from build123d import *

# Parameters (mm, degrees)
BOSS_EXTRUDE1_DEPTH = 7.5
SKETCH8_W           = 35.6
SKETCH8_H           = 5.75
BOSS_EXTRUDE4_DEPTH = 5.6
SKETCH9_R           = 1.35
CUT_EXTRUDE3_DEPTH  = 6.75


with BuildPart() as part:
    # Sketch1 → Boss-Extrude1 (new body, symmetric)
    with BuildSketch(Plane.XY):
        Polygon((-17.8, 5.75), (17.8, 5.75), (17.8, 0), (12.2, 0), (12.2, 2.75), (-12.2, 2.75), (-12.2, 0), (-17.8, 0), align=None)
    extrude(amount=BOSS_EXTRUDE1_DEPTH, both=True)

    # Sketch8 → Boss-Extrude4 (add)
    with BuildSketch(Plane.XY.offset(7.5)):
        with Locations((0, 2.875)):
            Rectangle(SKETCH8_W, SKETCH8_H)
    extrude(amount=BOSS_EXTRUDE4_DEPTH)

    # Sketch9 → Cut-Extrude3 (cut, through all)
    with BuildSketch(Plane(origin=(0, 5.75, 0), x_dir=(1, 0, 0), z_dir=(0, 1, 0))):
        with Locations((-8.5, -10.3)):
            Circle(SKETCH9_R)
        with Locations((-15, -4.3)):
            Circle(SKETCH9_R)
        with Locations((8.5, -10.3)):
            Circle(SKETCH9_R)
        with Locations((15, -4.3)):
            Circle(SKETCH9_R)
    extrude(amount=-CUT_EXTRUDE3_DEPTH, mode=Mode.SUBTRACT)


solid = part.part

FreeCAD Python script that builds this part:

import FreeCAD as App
import Part
import Sketcher


def add_polygon(sketch, points):
    """Adds a closed chain of lines whose ends are joined by coincident constraints."""
    first, n = sketch.GeometryCount, len(points)
    for a, b in zip(points, points[1:] + points[:1]):
        sketch.addGeometry(Part.LineSegment(App.Vector(*a, 0), App.Vector(*b, 0)), False)
    for i in range(n):
        sketch.addConstraint(Sketcher.Constraint("Coincident", first + i, 2, first + (i + 1) % n, 1))

doc = App.newDocument("Part")
body = doc.addObject("PartDesign::Body", "Body")

sketch1 = body.newObject("Sketcher::SketchObject", "Sketch")
sketch1.AttachmentSupport = (doc.getObject("XY_Plane"), [""])
sketch1.MapMode = "FlatFace"
add_polygon(sketch1, [(17.8, 5.8), (-17.8, 5.8), (-17.8, 0), (-12.2, 0), (-12.2, 2.8), (12.2, 2.8), (12.2, 0), (17.8, 0)])
sketch1.addConstraint([
    Sketcher.Constraint("Horizontal", 0),
    Sketcher.Constraint("Vertical", 1),
    Sketcher.Constraint("Horizontal", 2),
    Sketcher.Constraint("Vertical", 3),
    Sketcher.Constraint("Horizontal", 4),
    Sketcher.Constraint("Vertical", 5),
    Sketcher.Constraint("Horizontal", 6),
    Sketcher.Constraint("Vertical", 7),
    Sketcher.Constraint("Symmetric", 2, 2, 5, 2, -1, 1),
    Sketcher.Constraint("Symmetric", 1, 2, 6, 2, -2),
    Sketcher.Constraint("DistanceX", 0, 2, 0, 1, 35.6),
    Sketcher.Constraint("DistanceX", 2, 1, 2, 2, 5.6),
    Sketcher.Constraint("DistanceY", 3, 2, 0, 2, 3.0),
    Sketcher.Constraint("DistanceY", 1, 2, 1, 1, 5.75),
])
pad1 = body.newObject("PartDesign::Pad", "Pad")
pad1.Profile = sketch1
pad1.Length = 15
pad1.Midplane = True

sketch2 = body.newObject("Sketcher::SketchObject", "Sketch001")
sketch2.AttachmentSupport = (doc.getObject("XY_Plane"), [""])
sketch2.MapMode = "FlatFace"
sketch2.AttachmentOffset = App.Placement(App.Vector(0, 0, 7.5), App.Rotation())
add_polygon(sketch2, [(-18, 6), (-18, 0), (18, 0), (18, 6)])
sketch2.addConstraint([
    Sketcher.Constraint("Vertical", 0),
    Sketcher.Constraint("Horizontal", 1),
    Sketcher.Constraint("Vertical", 2),
    Sketcher.Constraint("Horizontal", 3),
    Sketcher.Constraint("Symmetric", 0, 2, 1, 2, -1, 1),
    Sketcher.Constraint("DistanceX", 1, 1, 1, 2, 35.6),
    Sketcher.Constraint("DistanceY", 0, 2, 0, 1, 5.75),
])
pad2 = body.newObject("PartDesign::Pad", "Pad001")
pad2.Profile = sketch2
pad2.Length = 5.6

sketch3 = body.newObject("Sketcher::SketchObject", "Sketch002")
sketch3.AttachmentSupport = (doc.getObject("XZ_Plane"), [""])
sketch3.MapMode = "FlatFace"
sketch3.AttachmentOffset = App.Placement(App.Vector(0, 0, -5.75), App.Rotation())
sketch3.addGeometry([
    Part.Circle(App.Vector(-8.5, 10.3, 0), App.Vector(0, 0, 1), 1.4),
    Part.Circle(App.Vector(-15, 4.3, 0), App.Vector(0, 0, 1), 1.4),
    Part.Circle(App.Vector(8.5, 10.3, 0), App.Vector(0, 0, 1), 1.4),
    Part.Circle(App.Vector(15, 4.3, 0), App.Vector(0, 0, 1), 1.4),
], False)
sketch3.addConstraint([
    Sketcher.Constraint("Equal", 0, 1),
    Sketcher.Constraint("Equal", 1, 2),
    Sketcher.Constraint("Equal", 2, 3),
    Sketcher.Constraint("Symmetric", 0, 3, 2, 3, -2),
    Sketcher.Constraint("Symmetric", 1, 3, 3, 3, -2),
    Sketcher.Constraint("Diameter", 0, 2.7),
    Sketcher.Constraint("DistanceX", 1, 3, -1, 1, 15.0),
    Sketcher.Constraint("DistanceY", 1, 3, 0, 3, 6.0),
    Sketcher.Constraint("DistanceX", 0, 3, 2, 3, 17.0),
    Sketcher.Constraint("DistanceY", -1, 1, 0, 3, 10.3),
])
pocket1 = body.newObject("PartDesign::Pocket", "Pocket")
pocket1.Profile = sketch3
pocket1.Type = "ThroughAll"
pocket1.Reversed = True

doc.recompute()
